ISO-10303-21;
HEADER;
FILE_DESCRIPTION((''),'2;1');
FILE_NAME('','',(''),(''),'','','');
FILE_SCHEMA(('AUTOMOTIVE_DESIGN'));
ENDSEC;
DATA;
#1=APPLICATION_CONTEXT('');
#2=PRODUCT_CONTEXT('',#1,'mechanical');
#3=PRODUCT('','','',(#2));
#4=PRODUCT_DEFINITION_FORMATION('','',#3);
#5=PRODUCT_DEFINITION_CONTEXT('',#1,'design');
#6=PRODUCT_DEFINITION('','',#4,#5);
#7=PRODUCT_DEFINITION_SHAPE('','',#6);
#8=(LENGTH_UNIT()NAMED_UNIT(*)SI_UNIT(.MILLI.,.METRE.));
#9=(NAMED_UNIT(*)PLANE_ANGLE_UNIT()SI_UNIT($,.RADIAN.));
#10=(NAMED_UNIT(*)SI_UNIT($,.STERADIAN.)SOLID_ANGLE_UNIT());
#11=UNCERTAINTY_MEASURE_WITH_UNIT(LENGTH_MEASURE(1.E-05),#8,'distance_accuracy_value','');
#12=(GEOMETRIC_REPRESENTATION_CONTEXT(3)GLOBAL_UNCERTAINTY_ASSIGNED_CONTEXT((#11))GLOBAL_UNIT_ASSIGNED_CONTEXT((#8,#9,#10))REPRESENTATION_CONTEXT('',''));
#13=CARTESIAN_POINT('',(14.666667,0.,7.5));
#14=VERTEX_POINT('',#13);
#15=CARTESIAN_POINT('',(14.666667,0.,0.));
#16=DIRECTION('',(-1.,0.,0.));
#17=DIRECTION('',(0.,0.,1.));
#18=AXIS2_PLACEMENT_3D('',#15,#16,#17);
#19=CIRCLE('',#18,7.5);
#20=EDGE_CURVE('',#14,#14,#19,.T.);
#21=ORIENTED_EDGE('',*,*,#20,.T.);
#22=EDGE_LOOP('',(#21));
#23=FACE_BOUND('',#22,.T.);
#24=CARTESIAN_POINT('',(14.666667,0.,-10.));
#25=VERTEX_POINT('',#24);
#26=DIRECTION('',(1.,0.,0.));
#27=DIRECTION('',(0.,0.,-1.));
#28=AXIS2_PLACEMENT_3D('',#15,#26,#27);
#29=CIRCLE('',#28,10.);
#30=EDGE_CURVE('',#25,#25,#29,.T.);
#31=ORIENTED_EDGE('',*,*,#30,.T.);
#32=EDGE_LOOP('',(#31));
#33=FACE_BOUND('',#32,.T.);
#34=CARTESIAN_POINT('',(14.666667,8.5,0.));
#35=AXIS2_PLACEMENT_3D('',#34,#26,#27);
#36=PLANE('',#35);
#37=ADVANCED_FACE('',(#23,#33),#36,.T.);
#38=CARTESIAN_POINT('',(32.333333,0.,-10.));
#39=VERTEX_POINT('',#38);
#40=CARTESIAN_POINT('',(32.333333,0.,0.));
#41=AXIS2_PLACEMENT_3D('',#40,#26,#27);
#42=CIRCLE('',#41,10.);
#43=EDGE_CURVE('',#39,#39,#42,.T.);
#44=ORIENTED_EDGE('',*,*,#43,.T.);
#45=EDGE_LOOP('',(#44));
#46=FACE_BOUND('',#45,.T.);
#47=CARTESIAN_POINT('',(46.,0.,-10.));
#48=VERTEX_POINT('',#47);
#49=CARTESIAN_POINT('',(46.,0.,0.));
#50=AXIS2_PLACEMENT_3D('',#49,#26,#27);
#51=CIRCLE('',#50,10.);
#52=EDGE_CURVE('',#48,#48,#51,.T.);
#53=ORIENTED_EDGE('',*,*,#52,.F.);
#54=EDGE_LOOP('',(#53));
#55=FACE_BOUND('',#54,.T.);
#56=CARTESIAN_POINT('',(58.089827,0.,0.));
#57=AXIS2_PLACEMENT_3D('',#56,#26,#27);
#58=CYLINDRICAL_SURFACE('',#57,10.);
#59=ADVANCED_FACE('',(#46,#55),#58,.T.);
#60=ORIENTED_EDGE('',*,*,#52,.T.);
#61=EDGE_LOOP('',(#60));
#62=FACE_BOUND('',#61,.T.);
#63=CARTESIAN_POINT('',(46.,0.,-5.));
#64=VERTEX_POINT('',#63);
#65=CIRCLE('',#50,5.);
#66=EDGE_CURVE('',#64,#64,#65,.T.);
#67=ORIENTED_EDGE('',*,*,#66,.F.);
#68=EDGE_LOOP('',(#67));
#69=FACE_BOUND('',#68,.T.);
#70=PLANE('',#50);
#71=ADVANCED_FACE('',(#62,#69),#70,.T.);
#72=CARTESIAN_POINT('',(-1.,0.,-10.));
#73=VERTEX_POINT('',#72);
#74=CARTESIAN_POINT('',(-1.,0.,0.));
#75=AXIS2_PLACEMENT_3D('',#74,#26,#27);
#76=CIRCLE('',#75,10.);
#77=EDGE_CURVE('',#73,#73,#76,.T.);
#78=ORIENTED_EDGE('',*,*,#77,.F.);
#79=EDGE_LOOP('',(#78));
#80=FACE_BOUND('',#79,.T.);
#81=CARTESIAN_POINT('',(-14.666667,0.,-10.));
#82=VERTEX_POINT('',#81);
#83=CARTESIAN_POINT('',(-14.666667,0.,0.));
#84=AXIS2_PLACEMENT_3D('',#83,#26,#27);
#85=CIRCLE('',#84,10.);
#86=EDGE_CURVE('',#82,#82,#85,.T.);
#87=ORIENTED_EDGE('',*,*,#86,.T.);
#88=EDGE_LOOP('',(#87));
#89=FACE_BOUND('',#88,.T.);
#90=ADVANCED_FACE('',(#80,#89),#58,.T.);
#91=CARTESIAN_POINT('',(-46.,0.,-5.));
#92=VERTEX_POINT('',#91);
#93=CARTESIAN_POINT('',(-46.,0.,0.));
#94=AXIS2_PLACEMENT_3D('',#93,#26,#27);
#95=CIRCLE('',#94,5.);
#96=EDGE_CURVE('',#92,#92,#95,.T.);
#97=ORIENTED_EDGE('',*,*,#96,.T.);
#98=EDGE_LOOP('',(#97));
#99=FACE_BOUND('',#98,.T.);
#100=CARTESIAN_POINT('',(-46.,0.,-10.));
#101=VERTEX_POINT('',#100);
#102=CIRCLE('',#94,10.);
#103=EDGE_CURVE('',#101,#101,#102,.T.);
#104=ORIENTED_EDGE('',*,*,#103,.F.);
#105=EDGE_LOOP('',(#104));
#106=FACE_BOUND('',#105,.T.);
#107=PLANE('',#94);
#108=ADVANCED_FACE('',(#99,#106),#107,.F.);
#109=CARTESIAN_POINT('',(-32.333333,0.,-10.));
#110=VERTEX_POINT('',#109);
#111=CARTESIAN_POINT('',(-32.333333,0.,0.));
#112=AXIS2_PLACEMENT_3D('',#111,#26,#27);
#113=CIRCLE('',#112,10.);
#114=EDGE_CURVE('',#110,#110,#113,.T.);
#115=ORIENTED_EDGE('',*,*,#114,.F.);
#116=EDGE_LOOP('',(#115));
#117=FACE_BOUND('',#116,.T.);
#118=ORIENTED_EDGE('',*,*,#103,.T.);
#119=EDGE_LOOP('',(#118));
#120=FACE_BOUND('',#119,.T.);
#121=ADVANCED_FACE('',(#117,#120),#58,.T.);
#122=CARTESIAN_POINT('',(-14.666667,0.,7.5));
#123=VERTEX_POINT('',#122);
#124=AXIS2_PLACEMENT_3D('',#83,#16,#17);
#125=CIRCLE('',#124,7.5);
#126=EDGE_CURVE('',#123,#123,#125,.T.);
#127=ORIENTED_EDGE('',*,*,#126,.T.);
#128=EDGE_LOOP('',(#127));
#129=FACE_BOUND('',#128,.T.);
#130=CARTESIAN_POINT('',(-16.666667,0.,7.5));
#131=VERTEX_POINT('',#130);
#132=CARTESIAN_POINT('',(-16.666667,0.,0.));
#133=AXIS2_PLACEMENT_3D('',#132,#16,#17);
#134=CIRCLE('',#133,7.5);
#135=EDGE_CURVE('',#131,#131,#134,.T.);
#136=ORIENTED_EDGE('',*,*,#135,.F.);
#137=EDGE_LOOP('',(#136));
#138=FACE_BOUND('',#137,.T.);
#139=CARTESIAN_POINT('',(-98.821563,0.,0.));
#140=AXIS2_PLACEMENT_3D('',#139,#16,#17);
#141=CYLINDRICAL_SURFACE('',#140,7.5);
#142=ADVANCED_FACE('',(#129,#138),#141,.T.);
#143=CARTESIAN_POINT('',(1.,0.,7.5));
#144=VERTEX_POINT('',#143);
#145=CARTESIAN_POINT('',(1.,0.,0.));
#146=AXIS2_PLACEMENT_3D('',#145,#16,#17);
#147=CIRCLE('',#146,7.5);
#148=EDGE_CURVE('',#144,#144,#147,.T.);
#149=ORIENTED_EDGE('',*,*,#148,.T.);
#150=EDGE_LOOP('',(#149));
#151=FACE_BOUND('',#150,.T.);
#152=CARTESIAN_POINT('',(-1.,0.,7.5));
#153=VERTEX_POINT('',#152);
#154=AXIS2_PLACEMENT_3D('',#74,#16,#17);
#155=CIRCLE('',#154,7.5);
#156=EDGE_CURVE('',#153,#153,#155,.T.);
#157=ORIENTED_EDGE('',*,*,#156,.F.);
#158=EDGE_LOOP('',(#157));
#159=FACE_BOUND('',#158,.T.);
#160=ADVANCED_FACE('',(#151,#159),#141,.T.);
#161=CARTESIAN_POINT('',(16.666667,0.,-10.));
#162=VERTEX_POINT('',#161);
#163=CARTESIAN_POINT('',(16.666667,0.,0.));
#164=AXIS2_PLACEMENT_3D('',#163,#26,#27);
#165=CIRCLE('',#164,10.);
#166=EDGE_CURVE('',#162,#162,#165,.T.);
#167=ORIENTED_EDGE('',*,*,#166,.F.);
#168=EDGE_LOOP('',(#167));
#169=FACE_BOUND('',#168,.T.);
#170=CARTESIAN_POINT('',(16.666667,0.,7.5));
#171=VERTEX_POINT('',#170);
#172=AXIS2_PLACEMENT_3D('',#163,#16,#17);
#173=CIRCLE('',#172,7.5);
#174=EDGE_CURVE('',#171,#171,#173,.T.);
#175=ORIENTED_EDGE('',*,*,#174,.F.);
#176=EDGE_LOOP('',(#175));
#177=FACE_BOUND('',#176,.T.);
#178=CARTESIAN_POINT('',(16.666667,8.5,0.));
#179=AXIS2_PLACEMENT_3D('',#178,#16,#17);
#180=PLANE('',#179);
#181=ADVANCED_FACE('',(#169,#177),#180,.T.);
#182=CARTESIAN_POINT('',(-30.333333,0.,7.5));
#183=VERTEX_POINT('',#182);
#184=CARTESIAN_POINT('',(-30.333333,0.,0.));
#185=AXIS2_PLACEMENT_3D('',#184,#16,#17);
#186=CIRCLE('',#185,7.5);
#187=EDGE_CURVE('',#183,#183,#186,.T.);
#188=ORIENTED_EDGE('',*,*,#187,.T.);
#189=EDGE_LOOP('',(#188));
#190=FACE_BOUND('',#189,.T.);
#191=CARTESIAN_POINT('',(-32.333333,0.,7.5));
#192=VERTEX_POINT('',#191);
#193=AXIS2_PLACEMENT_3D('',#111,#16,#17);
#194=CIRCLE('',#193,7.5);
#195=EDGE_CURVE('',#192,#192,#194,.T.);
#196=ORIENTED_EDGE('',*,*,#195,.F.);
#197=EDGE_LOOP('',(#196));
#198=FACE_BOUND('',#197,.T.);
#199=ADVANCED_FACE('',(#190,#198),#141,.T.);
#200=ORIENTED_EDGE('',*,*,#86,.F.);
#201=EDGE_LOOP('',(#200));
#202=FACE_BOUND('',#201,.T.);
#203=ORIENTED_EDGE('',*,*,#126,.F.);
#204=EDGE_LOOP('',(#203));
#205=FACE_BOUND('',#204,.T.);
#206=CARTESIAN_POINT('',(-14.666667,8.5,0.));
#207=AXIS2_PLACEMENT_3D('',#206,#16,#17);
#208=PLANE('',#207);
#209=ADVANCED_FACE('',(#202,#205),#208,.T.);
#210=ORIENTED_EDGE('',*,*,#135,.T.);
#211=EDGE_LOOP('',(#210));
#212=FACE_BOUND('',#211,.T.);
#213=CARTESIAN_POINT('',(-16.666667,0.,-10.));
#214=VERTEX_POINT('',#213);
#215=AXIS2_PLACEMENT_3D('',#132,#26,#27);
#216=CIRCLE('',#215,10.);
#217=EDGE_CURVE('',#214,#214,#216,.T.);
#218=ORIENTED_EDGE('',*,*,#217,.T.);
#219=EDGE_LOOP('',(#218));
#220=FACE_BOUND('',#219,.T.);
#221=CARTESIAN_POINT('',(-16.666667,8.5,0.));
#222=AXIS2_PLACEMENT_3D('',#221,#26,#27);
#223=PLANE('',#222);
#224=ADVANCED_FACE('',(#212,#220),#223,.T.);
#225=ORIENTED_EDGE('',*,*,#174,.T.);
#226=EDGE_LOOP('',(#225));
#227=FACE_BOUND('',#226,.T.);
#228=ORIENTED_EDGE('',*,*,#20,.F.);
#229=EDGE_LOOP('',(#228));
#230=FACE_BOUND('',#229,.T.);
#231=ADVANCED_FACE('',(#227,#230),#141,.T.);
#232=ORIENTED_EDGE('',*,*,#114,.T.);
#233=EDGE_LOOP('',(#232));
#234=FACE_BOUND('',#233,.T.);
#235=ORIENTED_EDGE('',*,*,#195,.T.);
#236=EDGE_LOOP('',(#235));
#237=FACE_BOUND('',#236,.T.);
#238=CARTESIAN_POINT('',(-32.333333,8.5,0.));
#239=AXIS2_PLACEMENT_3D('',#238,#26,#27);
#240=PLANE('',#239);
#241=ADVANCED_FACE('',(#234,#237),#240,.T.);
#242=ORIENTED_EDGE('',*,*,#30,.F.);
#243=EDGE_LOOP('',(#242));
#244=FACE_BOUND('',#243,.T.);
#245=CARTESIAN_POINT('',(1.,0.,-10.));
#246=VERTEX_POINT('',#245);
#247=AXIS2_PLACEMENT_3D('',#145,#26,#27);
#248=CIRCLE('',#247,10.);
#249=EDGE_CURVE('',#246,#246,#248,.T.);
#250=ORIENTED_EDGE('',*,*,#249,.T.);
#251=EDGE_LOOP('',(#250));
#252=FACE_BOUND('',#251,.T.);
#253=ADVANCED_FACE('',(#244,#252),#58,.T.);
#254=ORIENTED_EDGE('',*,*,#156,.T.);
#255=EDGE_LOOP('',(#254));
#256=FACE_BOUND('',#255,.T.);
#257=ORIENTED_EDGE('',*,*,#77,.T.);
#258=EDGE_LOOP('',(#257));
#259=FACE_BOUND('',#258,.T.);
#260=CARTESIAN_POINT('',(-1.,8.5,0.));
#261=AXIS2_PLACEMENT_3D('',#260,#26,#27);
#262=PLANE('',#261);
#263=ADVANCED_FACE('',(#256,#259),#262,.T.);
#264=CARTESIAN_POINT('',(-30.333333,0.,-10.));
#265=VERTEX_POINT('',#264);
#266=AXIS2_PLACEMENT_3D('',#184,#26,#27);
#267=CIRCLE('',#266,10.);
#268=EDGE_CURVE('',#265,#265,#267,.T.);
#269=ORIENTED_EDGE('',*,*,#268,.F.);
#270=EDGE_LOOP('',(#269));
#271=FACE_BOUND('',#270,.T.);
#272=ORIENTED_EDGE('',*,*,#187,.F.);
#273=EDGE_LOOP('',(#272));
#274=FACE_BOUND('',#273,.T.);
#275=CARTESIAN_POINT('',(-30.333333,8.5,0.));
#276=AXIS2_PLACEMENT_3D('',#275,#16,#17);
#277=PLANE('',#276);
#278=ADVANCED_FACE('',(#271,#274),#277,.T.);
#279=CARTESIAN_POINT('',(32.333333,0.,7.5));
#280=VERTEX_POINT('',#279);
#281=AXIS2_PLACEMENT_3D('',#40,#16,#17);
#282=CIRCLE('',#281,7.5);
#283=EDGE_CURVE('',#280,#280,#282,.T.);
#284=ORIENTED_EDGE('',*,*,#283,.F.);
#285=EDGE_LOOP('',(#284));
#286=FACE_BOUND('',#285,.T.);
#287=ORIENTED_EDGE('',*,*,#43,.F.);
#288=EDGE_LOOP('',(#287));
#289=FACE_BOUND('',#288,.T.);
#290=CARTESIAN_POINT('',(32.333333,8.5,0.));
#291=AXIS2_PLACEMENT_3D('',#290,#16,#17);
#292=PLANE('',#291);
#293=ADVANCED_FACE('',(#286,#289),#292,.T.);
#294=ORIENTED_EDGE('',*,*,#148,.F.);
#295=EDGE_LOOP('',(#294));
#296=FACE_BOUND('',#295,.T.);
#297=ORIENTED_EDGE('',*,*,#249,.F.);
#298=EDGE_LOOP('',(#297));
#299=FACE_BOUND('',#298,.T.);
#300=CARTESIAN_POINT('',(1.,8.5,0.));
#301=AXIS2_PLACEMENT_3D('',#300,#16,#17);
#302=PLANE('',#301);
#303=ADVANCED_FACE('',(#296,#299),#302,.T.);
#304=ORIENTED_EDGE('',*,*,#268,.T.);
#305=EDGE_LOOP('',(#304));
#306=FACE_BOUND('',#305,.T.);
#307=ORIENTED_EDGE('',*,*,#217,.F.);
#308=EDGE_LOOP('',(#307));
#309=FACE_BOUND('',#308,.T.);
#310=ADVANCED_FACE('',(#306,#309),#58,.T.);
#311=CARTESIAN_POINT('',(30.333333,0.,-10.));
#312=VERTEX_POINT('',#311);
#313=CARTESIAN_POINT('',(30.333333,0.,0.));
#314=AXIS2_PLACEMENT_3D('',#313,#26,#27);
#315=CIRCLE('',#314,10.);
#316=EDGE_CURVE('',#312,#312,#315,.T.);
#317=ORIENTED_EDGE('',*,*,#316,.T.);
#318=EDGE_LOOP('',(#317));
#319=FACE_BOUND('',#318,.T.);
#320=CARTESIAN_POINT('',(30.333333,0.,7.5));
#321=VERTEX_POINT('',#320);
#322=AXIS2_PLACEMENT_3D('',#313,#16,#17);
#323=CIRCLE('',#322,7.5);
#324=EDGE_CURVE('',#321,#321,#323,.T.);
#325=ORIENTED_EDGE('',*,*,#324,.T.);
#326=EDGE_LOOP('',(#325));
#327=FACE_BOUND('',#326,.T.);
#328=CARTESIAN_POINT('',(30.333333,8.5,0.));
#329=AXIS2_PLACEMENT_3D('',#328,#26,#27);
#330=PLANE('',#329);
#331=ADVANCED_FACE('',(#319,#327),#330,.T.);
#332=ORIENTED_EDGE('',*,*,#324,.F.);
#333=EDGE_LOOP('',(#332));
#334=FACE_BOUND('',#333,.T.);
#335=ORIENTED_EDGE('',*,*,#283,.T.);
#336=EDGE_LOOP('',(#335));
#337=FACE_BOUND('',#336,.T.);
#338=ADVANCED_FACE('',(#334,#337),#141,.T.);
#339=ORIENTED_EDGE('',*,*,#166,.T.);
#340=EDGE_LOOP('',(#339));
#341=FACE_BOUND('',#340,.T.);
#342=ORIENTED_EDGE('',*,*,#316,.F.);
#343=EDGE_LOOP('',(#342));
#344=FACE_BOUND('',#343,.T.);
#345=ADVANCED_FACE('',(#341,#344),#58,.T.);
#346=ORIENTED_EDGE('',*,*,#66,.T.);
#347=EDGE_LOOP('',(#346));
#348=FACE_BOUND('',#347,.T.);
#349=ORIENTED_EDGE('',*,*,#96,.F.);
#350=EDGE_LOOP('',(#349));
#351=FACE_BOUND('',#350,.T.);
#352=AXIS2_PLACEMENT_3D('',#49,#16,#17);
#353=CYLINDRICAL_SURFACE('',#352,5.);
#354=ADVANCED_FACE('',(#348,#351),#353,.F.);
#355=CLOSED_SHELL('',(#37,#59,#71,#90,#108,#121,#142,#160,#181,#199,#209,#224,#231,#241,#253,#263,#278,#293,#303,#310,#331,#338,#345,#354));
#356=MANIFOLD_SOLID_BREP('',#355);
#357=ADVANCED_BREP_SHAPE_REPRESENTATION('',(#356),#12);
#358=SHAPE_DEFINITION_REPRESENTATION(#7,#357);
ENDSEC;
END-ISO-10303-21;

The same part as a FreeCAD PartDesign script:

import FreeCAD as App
import Part
import Sketcher
Q = App.Units.Quantity


def add_polygon(sketch, points):
    """Adds a closed chain of lines whose ends are joined by coincident constraints."""
    first, n = sketch.GeometryCount, len(points)
    for a, b in zip(points, points[1:] + points[:1]):
        sketch.addGeometry(Part.LineSegment(App.Vector(*a, 0), App.Vector(*b, 0)), False)
    for i in range(n):
        sketch.addConstraint(Sketcher.Constraint("Coincident", first + i, 2, first + (i + 1) % n, 1))

doc = App.newDocument("Part")
params = doc.addObject("Spreadsheet::Sheet", "Params")
for row, (alias, value) in enumerate([
    ("sketch1_diameter", "17 mm"),
    ("sketch1_diameter2", "10 mm"),
    ("pad1_length", "92 mm"),
    ("sketch2_width", "2 mm"),
    ("sketch2_height", "1 mm"),
    ("groove_angle", "360 deg"),
    ("sketch3_height", "1.5 mm"),
    ("revolution_angle", "360 deg"),
], start=1):
    params.set(f"A{row}", alias)
    params.set(f"B{row}", "=" + value)
    params.setAlias(f"B{row}", alias)

body = doc.addObject("PartDesign::Body", "Body")

# Sketch on YZ plane
sketch1 = body.newObject("Sketcher::SketchObject", "Sketch")
sketch1.AttachmentSupport = (doc.getObject("YZ_Plane"), [""])
sketch1.MapMode = "FlatFace"
sketch1.addGeometry(Part.Circle(App.Vector(0, 0, 0), App.Vector(0, 0, 1), 8), False)
sketch1.addGeometry(Part.Circle(App.Vector(0, 0, 0), App.Vector(0, 0, 1), 5), False)
sketch1.addConstraint(Sketcher.Constraint("Coincident", 0, 3, -1, 1))
sketch1.addConstraint(Sketcher.Constraint("Coincident", 1, 3, -1, 1))
sketch1.addConstraint(Sketcher.Constraint("Diameter", 0, Q("17 mm")))
sketch1.addConstraint(Sketcher.Constraint("Diameter", 1, Q("10 mm")))
sketch1.setExpression("Constraints[2]", "Params.sketch1_diameter")
sketch1.setExpression("Constraints[3]", "Params.sketch1_diameter2")
pad1 = body.newObject("PartDesign::Pad", "Pad")
pad1.Profile = sketch1
pad1.setExpression("Length", "Params.pad1_length")
pad1.Midplane = True

# Sketch on XY plane
sketch2 = body.newObject("Sketcher::SketchObject", "Sketch001")
sketch2.AttachmentSupport = (doc.getObject("XY_Plane"), [""])
sketch2.MapMode = "FlatFace"
add_polygon(sketch2, [(30.3, 8.5), (30.3, 7.5), (32.3, 7.5), (32.3, 8.5)])  # lines 0-3
add_polygon(sketch2, [(14.7, 8.5), (14.7, 7.5), (16.7, 7.5), (16.7, 8.5)])  # lines 4-7
add_polygon(sketch2, [(-1, 8.5), (-1, 7.5), (1, 7.5), (1, 8.5)])  # lines 8-11
add_polygon(sketch2, [(-16.7, 8.5), (-16.7, 7.5), (-14.7, 7.5), (-14.7, 8.5)])  # lines 12-15
add_polygon(sketch2, [(-32.3, 8.5), (-32.3, 7.5), (-30.3, 7.5), (-30.3, 8.5)])  # lines 16-19
sketch2.addConstraint(Sketcher.Constraint("Vertical", 0))
sketch2.addConstraint(Sketcher.Constraint("Horizontal", 1))
sketch2.addConstraint(Sketcher.Constraint("Vertical", 2))
sketch2.addConstraint(Sketcher.Constraint("Horizontal", 3))
sketch2.addConstraint(Sketcher.Constraint("Vertical", 4))
sketch2.addConstraint(Sketcher.Constraint("Horizontal", 5))
sketch2.addConstraint(Sketcher.Constraint("Vertical", 6))
sketch2.addConstraint(Sketcher.Constraint("Horizontal", 7))
sketch2.addConstraint(Sketcher.Constraint("Vertical", 8))
sketch2.addConstraint(Sketcher.Constraint("Horizontal", 9))
sketch2.addConstraint(Sketcher.Constraint("Vertical", 10))
sketch2.addConstraint(Sketcher.Constraint("Horizontal", 11))
sketch2.addConstraint(Sketcher.Constraint("Vertical", 12))
sketch2.addConstraint(Sketcher.Constraint("Horizontal", 13))
sketch2.addConstraint(Sketcher.Constraint("Vertical", 14))
sketch2.addConstraint(Sketcher.Constraint("Horizontal", 15))
sketch2.addConstraint(Sketcher.Constraint("Vertical", 16))
sketch2.addConstraint(Sketcher.Constraint("Horizontal", 17))
sketch2.addConstraint(Sketcher.Constraint("Vertical", 18))
sketch2.addConstraint(Sketcher.Constraint("Horizontal", 19))
sketch2.addConstraint(Sketcher.Constraint("Symmetric", 5, 2, 12, 2, -2))
sketch2.addConstraint(Sketcher.Constraint("Symmetric", 7, 2, 14, 2, -2))
sketch2.addConstraint(Sketcher.Constraint("Symmetric", 1, 2, 16, 2, -2))
sketch2.addConstraint(Sketcher.Constraint("Symmetric", 3, 2, 18, 2, -2))
sketch2.addConstraint(Sketcher.Constraint("Horizontal", 1, 2, 4, 2))
sketch2.addConstraint(Sketcher.Constraint("Horizontal", 3, 2, 6, 2))
sketch2.addConstraint(Sketcher.Constraint("Horizontal", 5, 2, 8, 2))
sketch2.addConstraint(Sketcher.Constraint("Horizontal", 7, 2, 10, 2))
sketch2.addConstraint(Sketcher.Constraint("Equal", 3, 5))
sketch2.addConstraint(Sketcher.Constraint("Equal", 7, 9))
sketch2.addConstraint(Sketcher.Constraint("DistanceX", 1, 1, 1, 2, Q("2 mm")))
sketch2.addConstraint(Sketcher.Constraint("DistanceY", 0, 2, 0, 1, Q("1 mm")))
sketch2.addConstraint(Sketcher.Constraint("DistanceX", 8, 2, -1, 1, Q("1 mm")))
sketch2.addConstraint(Sketcher.Constraint("DistanceY", -1, 1, 0, 2, Q("7.5 mm")))
sketch2.addConstraint(Sketcher.Constraint("DistanceX", -1, 1, 0, 2, Q("30.333333 mm")))
sketch2.addConstraint(Sketcher.Constraint("DistanceX", -1, 1, 4, 2, Q("14.666667 mm")))
sketch2.setExpression("Constraints[50]", "Params.sketch2_width")
sketch2.setExpression("Constraints[51]", "Params.sketch2_height")
groove = body.newObject("PartDesign::Groove", "Groove")
groove.Profile = sketch2
groove.ReferenceAxis = (sketch2, ["H_Axis"])
groove.setExpression("Angle", "Params.groove_angle")

# Sketch on XY plane
sketch3 = body.newObject("Sketcher::SketchObject", "Sketch002")
sketch3.AttachmentSupport = (doc.getObject("XY_Plane"), [""])
sketch3.MapMode = "FlatFace"
add_polygon(sketch3, [(-46, 10), (-46, 8.5), (-32.3, 8.5), (-32.3, 10)])  # lines 0-3
add_polygon(sketch3, [(-30.3, 10), (-30.3, 8.5), (-16.7, 8.5), (-16.7, 10)])  # lines 4-7
add_polygon(sketch3, [(-14.7, 10), (-14.7, 8.5), (-1, 8.5), (-1, 10)])  # lines 8-11
add_polygon(sketch3, [(1, 10), (1, 8.5), (14.7, 8.5), (14.7, 10)])  # lines 12-15
add_polygon(sketch3, [(16.7, 10), (16.7, 8.5), (30.3, 8.5), (30.3, 10)])  # lines 16-19
add_polygon(sketch3, [(32.3, 10), (32.3, 8.5), (46, 8.5), (46, 10)])  # lines 20-23
sketch3.addConstraint(Sketcher.Constraint("Vertical", 0))
sketch3.addConstraint(Sketcher.Constraint("Horizontal", 1))
sketch3.addConstraint(Sketcher.Constraint("Vertical", 2))
sketch3.addConstraint(Sketcher.Constraint("Horizontal", 3))
sketch3.addConstraint(Sketcher.Constraint("Vertical", 4))
sketch3.addConstraint(Sketcher.Constraint("Horizontal", 5))
sketch3.addConstraint(Sketcher.Constraint("Vertical", 6))
sketch3.addConstraint(Sketcher.Constraint("Horizontal", 7))
sketch3.addConstraint(Sketcher.Constraint("Vertical", 8))
sketch3.addConstraint(Sketcher.Constraint("Horizontal", 9))
sketch3.addConstraint(Sketcher.Constraint("Vertical", 10))
sketch3.addConstraint(Sketcher.Constraint("Horizontal", 11))
sketch3.addConstraint(Sketcher.Constraint("Vertical", 12))
sketch3.addConstraint(Sketcher.Constraint("Horizontal", 13))
sketch3.addConstraint(Sketcher.Constraint("Vertical", 14))
sketch3.addConstraint(Sketcher.Constraint("Horizontal", 15))
sketch3.addConstraint(Sketcher.Constraint("Vertical", 16))
sketch3.addConstraint(Sketcher.Constraint("Horizontal", 17))
sketch3.addConstraint(Sketcher.Constraint("Vertical", 18))
sketch3.addConstraint(Sketcher.Constraint("Horizontal", 19))
sketch3.addConstraint(Sketcher.Constraint("Vertical", 20))
sketch3.addConstraint(Sketcher.Constraint("Horizontal", 21))
sketch3.addConstraint(Sketcher.Constraint("Vertical", 22))
sketch3.addConstraint(Sketcher.Constraint("Horizontal", 23))
sketch3.addConstraint(Sketcher.Constraint("Symmetric", 9, 2, 12, 2, -2))
sketch3.addConstraint(Sketcher.Constraint("Symmetric", 11, 2, 14, 2, -2))
sketch3.addConstraint(Sketcher.Constraint("Symmetric", 5, 2, 16, 2, -2))
sketch3.addConstraint(Sketcher.Constraint("Symmetric", 7, 2, 18, 2, -2))
sketch3.addConstraint(Sketcher.Constraint("Symmetric", 1, 2, 20, 2, -2))
sketch3.addConstraint(Sketcher.Constraint("Symmetric", 3, 2, 22, 2, -2))
sketch3.addConstraint(Sketcher.Constraint("Horizontal", 1, 2, 4, 2))
sketch3.addConstraint(Sketcher.Constraint("Horizontal", 3, 2, 6, 2))
sketch3.addConstraint(Sketcher.Constraint("Horizontal", 5, 2, 8, 2))
sketch3.addConstraint(Sketcher.Constraint("Horizontal", 7, 2, 10, 2))
sketch3.addConstraint(Sketcher.Constraint("Equal", 3, 5))
sketch3.addConstraint(Sketcher.Constraint("Equal", 7, 9))
sketch3.addConstraint(Sketcher.Constraint("DistanceY", 0, 2, 0, 1, Q("1.5 mm")))
sketch3.addConstraint(Sketcher.Constraint("DistanceX", 0, 2, -1, 1, Q("46 mm")))
sketch3.addConstraint(Sketcher.Constraint("DistanceY", -1, 1, 2, 2, Q("10 mm")))
sketch3.addConstraint(Sketcher.Constraint("DistanceX", 9, 2, -1, 1, Q("1 mm")))
sketch3.addConstraint(Sketcher.Constraint("DistanceX", 1, 2, 4, 2, Q("2 mm")))
sketch3.addConstraint(Sketcher.Constraint("DistanceX", 5, 2, 8, 2, Q("2 mm")))
sketch3.setExpression("Constraints[60]", "Params.sketch3_height")
revolution = body.newObject("PartDesign::Revolution", "Revolution")
revolution.Profile = sketch3
revolution.ReferenceAxis = (sketch3, ["H_Axis"])
revolution.setExpression("Angle", "Params.revolution_angle")

doc.recompute()
